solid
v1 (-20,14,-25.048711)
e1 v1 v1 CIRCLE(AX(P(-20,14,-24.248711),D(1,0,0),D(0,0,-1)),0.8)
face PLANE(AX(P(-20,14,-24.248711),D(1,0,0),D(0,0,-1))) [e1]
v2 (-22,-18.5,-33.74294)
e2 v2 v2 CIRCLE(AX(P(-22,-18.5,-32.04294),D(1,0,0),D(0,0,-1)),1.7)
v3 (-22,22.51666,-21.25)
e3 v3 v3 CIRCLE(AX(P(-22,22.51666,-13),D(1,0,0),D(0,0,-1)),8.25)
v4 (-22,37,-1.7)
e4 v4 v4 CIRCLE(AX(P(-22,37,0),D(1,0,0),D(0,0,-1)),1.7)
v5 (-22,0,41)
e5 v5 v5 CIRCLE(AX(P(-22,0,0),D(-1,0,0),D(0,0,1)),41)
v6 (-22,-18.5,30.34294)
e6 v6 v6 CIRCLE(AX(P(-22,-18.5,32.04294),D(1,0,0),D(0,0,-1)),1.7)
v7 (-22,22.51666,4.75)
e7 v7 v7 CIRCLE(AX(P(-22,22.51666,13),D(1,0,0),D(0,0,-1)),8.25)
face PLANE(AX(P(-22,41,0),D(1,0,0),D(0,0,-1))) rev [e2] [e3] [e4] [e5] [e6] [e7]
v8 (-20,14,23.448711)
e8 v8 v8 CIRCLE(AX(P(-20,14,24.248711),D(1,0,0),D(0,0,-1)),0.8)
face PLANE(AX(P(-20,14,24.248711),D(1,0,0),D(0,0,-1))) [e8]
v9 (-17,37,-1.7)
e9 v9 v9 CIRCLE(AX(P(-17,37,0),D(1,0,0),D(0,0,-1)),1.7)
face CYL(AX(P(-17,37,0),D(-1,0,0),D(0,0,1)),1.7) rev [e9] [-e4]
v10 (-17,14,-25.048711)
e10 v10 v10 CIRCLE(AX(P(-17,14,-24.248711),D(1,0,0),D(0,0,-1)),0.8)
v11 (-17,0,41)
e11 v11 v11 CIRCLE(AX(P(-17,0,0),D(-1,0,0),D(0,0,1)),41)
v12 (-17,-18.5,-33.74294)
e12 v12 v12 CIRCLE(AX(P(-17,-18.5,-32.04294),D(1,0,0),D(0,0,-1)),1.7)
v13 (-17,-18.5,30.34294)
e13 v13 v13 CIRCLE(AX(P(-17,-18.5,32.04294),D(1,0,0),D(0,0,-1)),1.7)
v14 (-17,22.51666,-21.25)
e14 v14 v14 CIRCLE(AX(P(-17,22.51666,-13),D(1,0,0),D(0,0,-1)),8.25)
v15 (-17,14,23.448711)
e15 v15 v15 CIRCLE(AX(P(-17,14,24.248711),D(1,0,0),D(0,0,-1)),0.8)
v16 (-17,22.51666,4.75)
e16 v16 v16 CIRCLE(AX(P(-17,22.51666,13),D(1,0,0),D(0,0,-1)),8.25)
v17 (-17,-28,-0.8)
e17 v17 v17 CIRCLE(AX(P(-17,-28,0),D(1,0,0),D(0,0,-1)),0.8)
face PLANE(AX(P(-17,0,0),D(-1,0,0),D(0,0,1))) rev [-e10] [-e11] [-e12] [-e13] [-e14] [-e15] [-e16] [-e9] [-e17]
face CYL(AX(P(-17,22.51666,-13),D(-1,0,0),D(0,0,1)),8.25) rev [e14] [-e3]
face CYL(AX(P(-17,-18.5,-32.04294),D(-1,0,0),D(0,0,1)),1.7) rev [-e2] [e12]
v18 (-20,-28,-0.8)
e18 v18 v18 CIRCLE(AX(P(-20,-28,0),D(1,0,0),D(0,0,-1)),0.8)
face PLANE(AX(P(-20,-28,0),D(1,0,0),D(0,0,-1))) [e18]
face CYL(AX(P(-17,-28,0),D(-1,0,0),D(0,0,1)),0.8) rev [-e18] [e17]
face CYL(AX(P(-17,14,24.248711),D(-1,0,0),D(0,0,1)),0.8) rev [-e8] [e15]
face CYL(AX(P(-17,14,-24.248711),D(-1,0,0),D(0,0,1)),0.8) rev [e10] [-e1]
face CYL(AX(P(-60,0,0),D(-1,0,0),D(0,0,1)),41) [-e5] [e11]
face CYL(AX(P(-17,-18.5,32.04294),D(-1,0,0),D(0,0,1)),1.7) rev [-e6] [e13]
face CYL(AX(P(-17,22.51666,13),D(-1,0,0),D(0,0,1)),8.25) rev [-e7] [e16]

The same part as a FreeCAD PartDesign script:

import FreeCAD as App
import Part
import Sketcher

V = App.Vector


def add_polygon(sketch, points):
    """Adds a closed chain of lines whose ends are joined by coincident constraints."""
    first, n = sketch.GeometryCount, len(points)
    for a, b in zip(points, points[1:] + points[:1]):
        sketch.addGeometry(Part.LineSegment(App.Vector(*a, 0), App.Vector(*b, 0)), False)
    for i in range(n):
        sketch.addConstraint(Sketcher.Constraint("Coincident", first + i, 2, first + (i + 1) % n, 1))

doc = App.newDocument("Part")
body = doc.addObject("PartDesign::Body", "Body")

# Sketch on XY plane
sketch1 = body.newObject("Sketcher::SketchObject", "Sketch")
sketch1.AttachmentSupport = (doc.getObject("XY_Plane"), [""])
sketch1.MapMode = "FlatFace"
add_polygon(sketch1, [(-22, 41), (-22, 0), (-17, 0), (-17, 41)])  # lines 0-3
sketch1.addConstraint([
    Sketcher.Constraint("Vertical", 0),
    Sketcher.Constraint("Horizontal", 1),
    Sketcher.Constraint("Vertical", 2),
    Sketcher.Constraint("Horizontal", 3),
    Sketcher.Constraint("PointOnObject", 0, 2, -1),
    Sketcher.Constraint("DistanceX", 1, 1, 1, 2, 5.0),
    Sketcher.Constraint("DistanceY", 0, 2, 0, 1, 41.0),
    Sketcher.Constraint("DistanceX", 0, 2, -1, 1, 22.0),
])
revolution = body.newObject("PartDesign::Revolution", "Revolution")
revolution.Profile = sketch1
revolution.ReferenceAxis = (sketch1, ["H_Axis"])
revolution.Angle = 360

# Sketch on YZ plane
sketch2 = body.newObject("Sketcher::SketchObject", "Sketch001")
sketch2.AttachmentSupport = (doc.getObject("YZ_Plane"), [""])
sketch2.MapMode = "FlatFace"
sketch2.AttachmentOffset = App.Placement(V(0, 0, -22), App.Rotation())
sketch2.addGeometry([
    Part.Circle(V(23, 13, 0), V(0, 0, 1), 8),
    Part.Circle(V(23, -13, 0), V(0, 0, 1), 8),
], False)
sketch2.addConstraint([
    Sketcher.Constraint("Equal", 0, 1),
    Sketcher.Constraint("Symmetric", 0, 3, 1, 3, -1),
    Sketcher.Constraint("Diameter", 0, 16.5),
    Sketcher.Constraint("DistanceY", -1, 1, 0, 3, 13.0),
    Sketcher.Constraint("DistanceX", -1, 1, 0, 3, 22.51666),
])
pocket1 = body.newObject("PartDesign::Pocket", "Pocket")
pocket1.Profile = sketch2
pocket1.Length = 5
pocket1.Reversed = True

# Sketch on YZ plane
sketch3 = body.newObject("Sketcher::SketchObject", "Sketch002")
sketch3.AttachmentSupport = (doc.getObject("YZ_Plane"), [""])
sketch3.MapMode = "FlatFace"
sketch3.AttachmentOffset = App.Placement(V(0, 0, -22), App.Rotation())
sketch3.addGeometry([
    Part.Circle(V(37, 0, 0), V(0, 0, 1), 1.7),
    Part.Circle(V(-18.5, 32, 0), V(0, 0, 1), 1.7),
    Part.Circle(V(-18.5, -32, 0), V(0, 0, 1), 1.7),
], False)
sketch3.addConstraint([
    Sketcher.Constraint("Equal", 0, 1),
    Sketcher.Constraint("Equal", 1, 2),
    Sketcher.Constraint("Symmetric", 1, 3, 2, 3, -1),
    Sketcher.Constraint("PointOnObject", 0, 3, -1),
    Sketcher.Constraint("Diameter", 0, 3.4),
    Sketcher.Constraint("DistanceX", -1, 1, 0, 3, 37.0),
    Sketcher.Constraint("DistanceX", 1, 3, -1, 1, 18.5),
    Sketcher.Constraint("DistanceY", -1, 1, 1, 3, 32.04294),
])
pocket2 = body.newObject("PartDesign::Pocket", "Pocket001")
pocket2.Profile = sketch3
pocket2.Length = 5
pocket2.Reversed = True

# Sketch on YZ plane
sketch4 = body.newObject("Sketcher::SketchObject", "Sketch003")
sketch4.AttachmentSupport = (doc.getObject("YZ_Plane"), [""])
sketch4.MapMode = "FlatFace"
sketch4.AttachmentOffset = App.Placement(V(0, 0, -20), App.Rotation())
sketch4.addGeometry([
    Part.Circle(V(14, 24.2, 0), V(0, 0, 1), 0.8),
    Part.Circle(V(-28, 0, 0), V(0, 0, 1), 0.8),
    Part.Circle(V(14, -24.2, 0), V(0, 0, 1), 0.8),
], False)
sketch4.addConstraint([
    Sketcher.Constraint("Equal", 0, 1),
    Sketcher.Constraint("Equal", 1, 2),
    Sketcher.Constraint("Symmetric", 0, 3, 2, 3, -1),
    Sketcher.Constraint("PointOnObject", 1, 3, -1),
    Sketcher.Constraint("Diameter", 0, 1.6),
    Sketcher.Constraint("DistanceX", -1, 1, 0, 3, 14.0),
    Sketcher.Constraint("DistanceX", 1, 3, -1, 1, 28.0),
    Sketcher.Constraint("DistanceY", -1, 1, 0, 3, 24.248711),
])
pocket3 = body.newObject("PartDesign::Pocket", "Pocket002")
pocket3.Profile = sketch4
pocket3.Length = 3
pocket3.Reversed = True

doc.recompute()
